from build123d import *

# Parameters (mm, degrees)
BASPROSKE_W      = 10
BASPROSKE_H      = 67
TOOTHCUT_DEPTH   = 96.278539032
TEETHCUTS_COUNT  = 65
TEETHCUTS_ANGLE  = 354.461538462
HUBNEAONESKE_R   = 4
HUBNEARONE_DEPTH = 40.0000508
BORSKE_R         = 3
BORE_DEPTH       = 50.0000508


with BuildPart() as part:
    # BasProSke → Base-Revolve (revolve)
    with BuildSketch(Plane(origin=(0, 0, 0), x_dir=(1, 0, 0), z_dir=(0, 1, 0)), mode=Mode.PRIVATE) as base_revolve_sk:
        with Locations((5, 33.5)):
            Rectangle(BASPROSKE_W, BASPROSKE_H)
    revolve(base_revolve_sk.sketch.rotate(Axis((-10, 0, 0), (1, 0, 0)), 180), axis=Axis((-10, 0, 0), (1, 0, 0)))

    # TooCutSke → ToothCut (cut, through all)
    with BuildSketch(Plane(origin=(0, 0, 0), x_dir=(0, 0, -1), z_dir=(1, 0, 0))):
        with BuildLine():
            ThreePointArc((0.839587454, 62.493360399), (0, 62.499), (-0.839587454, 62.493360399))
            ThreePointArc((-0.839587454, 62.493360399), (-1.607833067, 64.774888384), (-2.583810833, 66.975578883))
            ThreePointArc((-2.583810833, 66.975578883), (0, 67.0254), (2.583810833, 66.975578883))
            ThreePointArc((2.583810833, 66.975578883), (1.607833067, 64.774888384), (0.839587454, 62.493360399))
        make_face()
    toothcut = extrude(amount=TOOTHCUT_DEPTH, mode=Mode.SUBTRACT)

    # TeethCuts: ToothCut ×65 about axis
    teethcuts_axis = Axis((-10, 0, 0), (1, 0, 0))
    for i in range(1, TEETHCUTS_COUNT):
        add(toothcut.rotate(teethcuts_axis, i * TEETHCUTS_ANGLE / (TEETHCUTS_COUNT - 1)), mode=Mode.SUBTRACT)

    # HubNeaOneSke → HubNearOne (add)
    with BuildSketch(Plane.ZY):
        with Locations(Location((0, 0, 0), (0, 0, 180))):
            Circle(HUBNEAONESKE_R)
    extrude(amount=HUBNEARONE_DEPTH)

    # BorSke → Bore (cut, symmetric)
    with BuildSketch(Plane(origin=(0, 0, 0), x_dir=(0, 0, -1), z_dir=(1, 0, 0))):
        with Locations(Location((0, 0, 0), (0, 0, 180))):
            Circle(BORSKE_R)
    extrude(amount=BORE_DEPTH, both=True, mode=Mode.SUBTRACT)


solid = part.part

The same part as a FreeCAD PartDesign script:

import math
import FreeCAD as App
import Part
import Sketcher


def add_polygon(sketch, points):
    """Adds a closed chain of lines whose ends are joined by coincident constraints."""
    first, n = sketch.GeometryCount, len(points)
    for a, b in zip(points, points[1:] + points[:1]):
        sketch.addGeometry(Part.LineSegment(App.Vector(*a, 0), App.Vector(*b, 0)), False)
    for i in range(n):
        sketch.addConstraint(Sketcher.Constraint("Coincident", first + i, 2, first + (i + 1) % n, 1))

doc = App.newDocument("Part")
body = doc.addObject("PartDesign::Body", "Body")

# Sketch on XZ plane
sketch1 = body.newObject("Sketcher::SketchObject", "Sketch")
sketch1.AttachmentSupport = (doc.getObject("XZ_Plane"), [""])
sketch1.MapMode = "FlatFace"
add_polygon(sketch1, [(0, -67), (0, 0), (10, 0), (10, -67)])  # lines 0-3
sketch1.addConstraint([
    Sketcher.Constraint("Vertical", 0),
    Sketcher.Constraint("Horizontal", 1),
    Sketcher.Constraint("Vertical", 2),
    Sketcher.Constraint("Horizontal", 3),
    Sketcher.Constraint("Coincident", 0, 2, -1, 1),
    Sketcher.Constraint("DistanceX", 1, 1, 1, 2, 10.0),
    Sketcher.Constraint("DistanceY", 0, 1, 0, 2, 67.0),
])
revolution = body.newObject("PartDesign::Revolution", "Revolution")
revolution.Profile = sketch1
revolution.ReferenceAxis = (sketch1, ["H_Axis"])
revolution.Angle = 360

# Sketch on YZ plane
sketch2 = body.newObject("Sketcher::SketchObject", "Sketch001")
sketch2.AttachmentSupport = (doc.getObject("YZ_Plane"), [""])
sketch2.MapMode = "FlatFace"
sketch2.addGeometry([
    Part.ArcOfCircle(Part.Circle(App.Vector(0, 0, 0), App.Vector(0, 0, 1), 62.5), math.radians(-0.77), math.radians(0.77)),
    Part.ArcOfCircle(Part.Circle(App.Vector(55.3, -25.8, 0), App.Vector(0, 0, 1), 26), math.radians(63.43), math.radians(74.04)),
    Part.ArcOfCircle(Part.Circle(App.Vector(0, 0, 0), App.Vector(0, 0, 1), 67), math.radians(-2.21), math.radians(2.21)),
    Part.ArcOfCircle(Part.Circle(App.Vector(55.3, 25.8, 0), App.Vector(0, 0, 1), 26), math.radians(-74.04), math.radians(-63.43)),
], False)
sketch2.addConstraint([
    Sketcher.Constraint("Coincident", 0, 1, 1, 2),
    Sketcher.Constraint("Coincident", 1, 1, 2, 1),
    Sketcher.Constraint("Coincident", 2, 2, 3, 2),
    Sketcher.Constraint("Coincident", 3, 1, 0, 2),
    Sketcher.Constraint("Coincident", 0, 3, -1, 1),
    Sketcher.Constraint("Coincident", 2, 3, -1, 1),
    Sketcher.Constraint("Equal", 1, 3),
    Sketcher.Constraint("Symmetric", 1, 3, 3, 3, -1),
    Sketcher.Constraint("Radius", 1, 26.0),
    Sketcher.Constraint("Radius", 2, 67.0254),
    Sketcher.Constraint("Radius", 0, 62.499005),
    Sketcher.Constraint("DistanceY", 0, 1, 2, 2, 3.423398),
    Sketcher.Constraint("DistanceX", -1, 1, 1, 3, 55.34594),
])
pocket1 = body.newObject("PartDesign::Pocket", "Pocket")
pocket1.Profile = sketch2
pocket1.Type = "ThroughAll"
pocket1.Reversed = True
doc.recompute()

polarpattern = body.newObject("PartDesign::PolarPattern", "PolarPattern")
polarpattern.Originals = [pocket1]
polarpattern.Axis = (doc.getObject("X_Axis"), [""])
polarpattern.Angle = 360
polarpattern.Occurrences = 65
body.Tip = polarpattern

# Sketch on YZ plane
sketch3 = body.newObject("Sketcher::SketchObject", "Sketch002")
sketch3.AttachmentSupport = (doc.getObject("YZ_Plane"), [""])
sketch3.MapMode = "FlatFace"
sketch3.addGeometry(Part.Circle(App.Vector(0, 0, 0), App.Vector(0, 0, 1), 4), False)
sketch3.addConstraint([
    Sketcher.Constraint("Coincident", 0, 3, -1, 1),
    Sketcher.Constraint("Diameter", 0, 8.0),
])
pad1 = body.newObject("PartDesign::Pad", "Pad")
pad1.Profile = sketch3
pad1.Length = 40.000051
pad1.Reversed = True

# Sketch on YZ plane
sketch4 = body.newObject("Sketcher::SketchObject", "Sketch003")
sketch4.AttachmentSupport = (doc.getObject("YZ_Plane"), [""])
sketch4.MapMode = "FlatFace"
sketch4.addGeometry(Part.Circle(App.Vector(0, 0, 0), App.Vector(0, 0, 1), 3), False)
sketch4.addConstraint([
    Sketcher.Constraint("Coincident", 0, 3, -1, 1),
    Sketcher.Constraint("Diameter", 0, 6.0),
])
pocket2 = body.newObject("PartDesign::Pocket", "Pocket001")
pocket2.Profile = sketch4
pocket2.Length = 100.000102
pocket2.Midplane = True

doc.recompute()
